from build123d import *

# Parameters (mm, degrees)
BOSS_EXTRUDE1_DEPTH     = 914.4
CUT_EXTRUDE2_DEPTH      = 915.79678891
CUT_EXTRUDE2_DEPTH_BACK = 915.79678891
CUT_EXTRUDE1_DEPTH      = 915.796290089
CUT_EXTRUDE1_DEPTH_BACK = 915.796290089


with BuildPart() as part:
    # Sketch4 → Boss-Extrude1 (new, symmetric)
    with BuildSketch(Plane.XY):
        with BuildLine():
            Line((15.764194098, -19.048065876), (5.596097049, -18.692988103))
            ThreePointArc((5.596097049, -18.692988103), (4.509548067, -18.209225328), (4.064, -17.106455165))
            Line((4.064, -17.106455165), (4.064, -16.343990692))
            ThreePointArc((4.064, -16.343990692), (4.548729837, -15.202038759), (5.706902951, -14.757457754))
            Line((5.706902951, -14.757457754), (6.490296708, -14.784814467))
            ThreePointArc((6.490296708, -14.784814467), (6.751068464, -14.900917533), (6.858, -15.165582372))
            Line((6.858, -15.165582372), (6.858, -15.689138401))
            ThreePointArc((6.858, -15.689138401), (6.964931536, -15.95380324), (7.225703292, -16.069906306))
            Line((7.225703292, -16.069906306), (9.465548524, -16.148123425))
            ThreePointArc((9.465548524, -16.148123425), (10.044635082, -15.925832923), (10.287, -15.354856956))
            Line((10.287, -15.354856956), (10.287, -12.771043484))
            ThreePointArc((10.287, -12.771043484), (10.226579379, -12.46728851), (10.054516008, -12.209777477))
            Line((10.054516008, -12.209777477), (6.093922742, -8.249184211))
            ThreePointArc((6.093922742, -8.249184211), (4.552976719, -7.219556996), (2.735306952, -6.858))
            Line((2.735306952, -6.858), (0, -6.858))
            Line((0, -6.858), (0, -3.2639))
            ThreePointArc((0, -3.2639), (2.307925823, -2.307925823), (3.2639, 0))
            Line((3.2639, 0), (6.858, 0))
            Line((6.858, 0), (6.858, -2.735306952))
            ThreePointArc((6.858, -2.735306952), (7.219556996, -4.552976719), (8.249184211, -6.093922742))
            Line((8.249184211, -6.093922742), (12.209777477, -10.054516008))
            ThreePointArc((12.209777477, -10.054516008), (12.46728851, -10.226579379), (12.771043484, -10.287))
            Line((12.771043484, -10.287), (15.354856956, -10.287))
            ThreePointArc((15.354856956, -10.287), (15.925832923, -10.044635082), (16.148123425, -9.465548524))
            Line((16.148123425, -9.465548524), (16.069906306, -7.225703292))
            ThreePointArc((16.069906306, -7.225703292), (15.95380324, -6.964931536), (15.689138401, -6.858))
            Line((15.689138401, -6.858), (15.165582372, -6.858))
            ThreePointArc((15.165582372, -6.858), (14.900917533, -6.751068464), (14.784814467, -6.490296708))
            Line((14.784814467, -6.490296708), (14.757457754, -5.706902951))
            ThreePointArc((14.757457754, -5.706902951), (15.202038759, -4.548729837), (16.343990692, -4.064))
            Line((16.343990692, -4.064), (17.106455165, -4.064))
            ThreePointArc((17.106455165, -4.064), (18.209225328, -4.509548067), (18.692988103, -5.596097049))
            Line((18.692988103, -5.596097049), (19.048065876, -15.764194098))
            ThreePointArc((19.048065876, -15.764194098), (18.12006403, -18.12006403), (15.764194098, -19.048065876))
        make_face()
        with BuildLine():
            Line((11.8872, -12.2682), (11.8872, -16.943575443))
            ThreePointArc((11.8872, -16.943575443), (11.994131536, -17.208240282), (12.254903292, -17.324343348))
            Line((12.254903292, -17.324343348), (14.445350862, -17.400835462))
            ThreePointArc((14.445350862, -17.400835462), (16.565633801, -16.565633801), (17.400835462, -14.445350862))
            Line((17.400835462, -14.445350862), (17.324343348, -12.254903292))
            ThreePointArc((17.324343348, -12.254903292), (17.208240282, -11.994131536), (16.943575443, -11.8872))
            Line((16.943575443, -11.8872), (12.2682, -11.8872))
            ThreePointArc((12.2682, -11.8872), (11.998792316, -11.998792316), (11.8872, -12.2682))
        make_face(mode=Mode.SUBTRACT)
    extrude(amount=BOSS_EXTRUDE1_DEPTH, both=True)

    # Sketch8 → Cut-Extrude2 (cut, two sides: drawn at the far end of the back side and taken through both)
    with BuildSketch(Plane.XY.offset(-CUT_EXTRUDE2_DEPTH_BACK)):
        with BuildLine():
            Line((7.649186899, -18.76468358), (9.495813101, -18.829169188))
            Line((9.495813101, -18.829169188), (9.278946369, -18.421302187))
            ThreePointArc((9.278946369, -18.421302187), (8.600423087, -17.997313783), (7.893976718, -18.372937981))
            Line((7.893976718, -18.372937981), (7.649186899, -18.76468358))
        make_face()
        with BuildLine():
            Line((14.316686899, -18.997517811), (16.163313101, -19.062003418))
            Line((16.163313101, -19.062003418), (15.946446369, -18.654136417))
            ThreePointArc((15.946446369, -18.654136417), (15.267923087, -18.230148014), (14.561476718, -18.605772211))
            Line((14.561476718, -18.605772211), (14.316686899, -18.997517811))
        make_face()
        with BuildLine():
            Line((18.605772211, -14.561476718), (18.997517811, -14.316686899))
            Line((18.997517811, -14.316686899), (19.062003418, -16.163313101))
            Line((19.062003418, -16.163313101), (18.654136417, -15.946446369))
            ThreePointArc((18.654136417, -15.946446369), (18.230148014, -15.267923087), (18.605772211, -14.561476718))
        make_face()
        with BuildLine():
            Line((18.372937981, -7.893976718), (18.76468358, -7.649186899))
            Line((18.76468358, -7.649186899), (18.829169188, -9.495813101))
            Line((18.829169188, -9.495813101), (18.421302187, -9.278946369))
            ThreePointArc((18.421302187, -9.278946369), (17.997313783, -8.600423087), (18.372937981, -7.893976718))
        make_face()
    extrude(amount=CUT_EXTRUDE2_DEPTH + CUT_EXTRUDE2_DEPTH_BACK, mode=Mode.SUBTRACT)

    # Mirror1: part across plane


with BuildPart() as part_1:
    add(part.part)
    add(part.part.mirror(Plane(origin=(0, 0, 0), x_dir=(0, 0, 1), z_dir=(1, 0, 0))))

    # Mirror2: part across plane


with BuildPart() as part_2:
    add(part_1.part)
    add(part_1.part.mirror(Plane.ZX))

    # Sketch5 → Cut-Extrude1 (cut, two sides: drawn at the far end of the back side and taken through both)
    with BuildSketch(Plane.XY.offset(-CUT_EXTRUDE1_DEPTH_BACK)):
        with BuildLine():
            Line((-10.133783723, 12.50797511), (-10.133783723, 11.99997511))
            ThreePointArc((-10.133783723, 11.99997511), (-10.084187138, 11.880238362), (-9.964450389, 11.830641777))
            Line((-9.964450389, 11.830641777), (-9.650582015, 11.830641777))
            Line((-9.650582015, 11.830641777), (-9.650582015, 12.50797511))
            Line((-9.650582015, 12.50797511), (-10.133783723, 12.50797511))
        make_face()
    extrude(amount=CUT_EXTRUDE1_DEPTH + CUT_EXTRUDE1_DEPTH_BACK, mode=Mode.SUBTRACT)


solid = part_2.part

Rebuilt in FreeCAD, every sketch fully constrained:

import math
import FreeCAD as App
import Part
import Sketcher
from FreeCAD import Vector
Q = App.Units.Quantity

doc = App.newDocument("Part")
body = doc.addObject("PartDesign::Body", "Body")

sketch1 = body.newObject("Sketcher::SketchObject", "Sketch")
sketch1.AttachmentSupport = (doc.getObject("XY_Plane"), [""])
sketch1.MapMode = "FlatFace"
sketch1.addGeometry([
    Part.LineSegment(Vector(5.6, -18.69, 0), Vector(15.76, -19.05, 0)),
    Part.ArcOfCircle(Part.Circle(Vector(15.87, -15.87, 0), Vector(0, 0, 1), 3.18), math.radians(-92), math.radians(2)),
    Part.LineSegment(Vector(19.05, -15.76, 0), Vector(18.69, -5.6, 0)),
    Part.ArcOfCircle(Part.Circle(Vector(17.11, -5.65, 0), Vector(0, 0, 1), 1.59), math.radians(2), math.radians(90)),
    Part.LineSegment(Vector(17.11, -4.06, 0), Vector(16.34, -4.06, 0)),
    Part.ArcOfCircle(Part.Circle(Vector(16.34, -5.65, 0), Vector(0, 0, 1), 1.59), math.radians(90), math.radians(182)),
    Part.LineSegment(Vector(14.76, -5.71, 0), Vector(14.78, -6.49, 0)),
    Part.ArcOfCircle(Part.Circle(Vector(15.17, -6.48, 0), Vector(0, 0, 1), 0.38), math.radians(-178), math.radians(-90)),
    Part.LineSegment(Vector(15.17, -6.86, 0), Vector(15.69, -6.86, 0)),
    Part.ArcOfCircle(Part.Circle(Vector(15.69, -7.24, 0), Vector(0, 0, 1), 0.38), math.radians(2), math.radians(90)),
    Part.LineSegment(Vector(16.07, -7.23, 0), Vector(16.15, -9.47, 0)),
    Part.ArcOfCircle(Part.Circle(Vector(15.35, -9.49, 0), Vector(0, 0, 1), 0.79), math.radians(-90), math.radians(2)),
    Part.LineSegment(Vector(15.35, -10.29, 0), Vector(12.77, -10.29, 0)),
    Part.ArcOfCircle(Part.Circle(Vector(12.77, -9.49, 0), Vector(0, 0, 1), 0.79), math.radians(-135), math.radians(-90)),
    Part.LineSegment(Vector(12.21, -10.05, 0), Vector(8.25, -6.09, 0)),
    Part.ArcOfCircle(Part.Circle(Vector(11.61, -2.74, 0), Vector(0, 0, 1), 4.75), math.radians(180), math.radians(225)),
    Part.LineSegment(Vector(6.86, -2.74, 0), Vector(6.86, 0, 0)),
    Part.LineSegment(Vector(6.86, 0, 0), Vector(3.26, 0, 0)),
    Part.ArcOfCircle(Part.Circle(Vector(0, 0, 0), Vector(0, 0, 1), 3.26), math.radians(-90), math.radians(0)),
    Part.LineSegment(Vector(0, -3.26, 0), Vector(0, -6.86, 0)),
    Part.LineSegment(Vector(0, -6.86, 0), Vector(2.74, -6.86, 0)),
    Part.ArcOfCircle(Part.Circle(Vector(2.74, -11.61, 0), Vector(0, 0, 1), 4.75), math.radians(45), math.radians(90)),
    Part.LineSegment(Vector(6.09, -8.25, 0), Vector(10.05, -12.21, 0)),
    Part.ArcOfCircle(Part.Circle(Vector(9.49, -12.77, 0), Vector(0, 0, 1), 0.79), math.radians(0), math.radians(45)),
    Part.LineSegment(Vector(10.29, -12.77, 0), Vector(10.29, -15.35, 0)),
    Part.ArcOfCircle(Part.Circle(Vector(9.49, -15.35, 0), Vector(0, 0, 1), 0.79), math.radians(-92), math.radians(0)),
    Part.LineSegment(Vector(9.47, -16.15, 0), Vector(7.23, -16.07, 0)),
    Part.ArcOfCircle(Part.Circle(Vector(7.24, -15.69, 0), Vector(0, 0, 1), 0.38), math.radians(180), math.radians(268)),
    Part.LineSegment(Vector(6.86, -15.69, 0), Vector(6.86, -15.17, 0)),
    Part.ArcOfCircle(Part.Circle(Vector(6.48, -15.17, 0), Vector(0, 0, 1), 0.38), math.radians(0), math.radians(88)),
    Part.LineSegment(Vector(6.49, -14.78, 0), Vector(5.71, -14.76, 0)),
    Part.ArcOfCircle(Part.Circle(Vector(5.65, -16.34, 0), Vector(0, 0, 1), 1.59), math.radians(88), math.radians(180)),
    Part.LineSegment(Vector(4.06, -16.34, 0), Vector(4.06, -17.11, 0)),
    Part.ArcOfCircle(Part.Circle(Vector(5.65, -17.11, 0), Vector(0, 0, 1), 1.59), math.radians(180), math.radians(268)),
    Part.ArcOfCircle(Part.Circle(Vector(12.27, -12.27, 0), Vector(0, 0, 1), 0.38), math.radians(90), math.radians(180)),
    Part.LineSegment(Vector(12.27, -11.89, 0), Vector(16.94, -11.89, 0)),
    Part.ArcOfCircle(Part.Circle(Vector(16.94, -12.27, 0), Vector(0, 0, 1), 0.38), math.radians(2), math.radians(90)),
    Part.LineSegment(Vector(17.32, -12.25, 0), Vector(17.4, -14.45, 0)),
    Part.ArcOfCircle(Part.Circle(Vector(14.55, -14.55, 0), Vector(0, 0, 1), 2.86), math.radians(-92), math.radians(2)),
    Part.LineSegment(Vector(14.45, -17.4, 0), Vector(12.25, -17.32, 0)),
    Part.ArcOfCircle(Part.Circle(Vector(12.27, -16.94, 0), Vector(0, 0, 1), 0.38), math.radians(180), math.radians(268)),
    Part.LineSegment(Vector(11.89, -16.94, 0), Vector(11.89, -12.27, 0)),
], False)
sketch1.addConstraint([
    Sketcher.Constraint("Tangent", 0, 2, 1, 1),
    Sketcher.Constraint("Tangent", 1, 2, 2, 1),
    Sketcher.Constraint("Tangent", 2, 2, 3, 1),
    Sketcher.Constraint("Tangent", 3, 2, 4, 1),
    Sketcher.Constraint("Tangent", 4, 2, 5, 1),
    Sketcher.Constraint("Tangent", 5, 2, 6, 1),
    Sketcher.Constraint("Tangent", 6, 2, 7, 1),
    Sketcher.Constraint("Tangent", 7, 2, 8, 1),
    Sketcher.Constraint("Tangent", 8, 2, 9, 2),
    Sketcher.Constraint("Tangent", 9, 1, 10, 1),
    Sketcher.Constraint("Tangent", 10, 2, 11, 2),
    Sketcher.Constraint("Tangent", 11, 1, 12, 1),
    Sketcher.Constraint("Tangent", 12, 2, 13, 2),
    Sketcher.Constraint("Tangent", 13, 1, 14, 1),
    Sketcher.Constraint("Tangent", 14, 2, 15, 2),
    Sketcher.Constraint("Tangent", 15, 1, 16, 1),
    Sketcher.Constraint("Coincident", 16, 2, 17, 1),
    Sketcher.Constraint("Coincident", 17, 2, 18, 2),
    Sketcher.Constraint("Coincident", 18, 1, 19, 1),
    Sketcher.Constraint("Coincident", 19, 2, 20, 1),
    Sketcher.Constraint("Tangent", 20, 2, 21, 2),
    Sketcher.Constraint("Tangent", 21, 1, 22, 1),
    Sketcher.Constraint("Tangent", 22, 2, 23, 2),
    Sketcher.Constraint("Tangent", 23, 1, 24, 1),
    Sketcher.Constraint("Tangent", 24, 2, 25, 2),
    Sketcher.Constraint("Tangent", 25, 1, 26, 1),
    Sketcher.Constraint("Tangent", 26, 2, 27, 2),
    Sketcher.Constraint("Tangent", 27, 1, 28, 1),
    Sketcher.Constraint("Tangent", 28, 2, 29, 1),
    Sketcher.Constraint("Tangent", 29, 2, 30, 1),
    Sketcher.Constraint("Tangent", 30, 2, 31, 1),
    Sketcher.Constraint("Tangent", 31, 2, 32, 1),
    Sketcher.Constraint("Tangent", 32, 2, 33, 1),
    Sketcher.Constraint("Tangent", 33, 2, 0, 1),
    Sketcher.Constraint("Tangent", 34, 1, 35, 1),
    Sketcher.Constraint("Tangent", 35, 2, 36, 2),
    Sketcher.Constraint("Tangent", 36, 1, 37, 1),
    Sketcher.Constraint("Tangent", 37, 2, 38, 2),
    Sketcher.Constraint("Tangent", 38, 1, 39, 1),
    Sketcher.Constraint("Tangent", 39, 2, 40, 2),
    Sketcher.Constraint("Tangent", 40, 1, 41, 1),
    Sketcher.Constraint("Tangent", 41, 2, 34, 2),
    Sketcher.Constraint("Horizontal", 4),
    Sketcher.Constraint("Horizontal", 8),
    Sketcher.Constraint("Horizontal", 12),
    Sketcher.Constraint("Vertical", 16),
    Sketcher.Constraint("Horizontal", 17),
    Sketcher.Constraint("Vertical", 19),
    Sketcher.Constraint("Horizontal", 20),
    Sketcher.Constraint("Vertical", 24),
    Sketcher.Constraint("Vertical", 28),
    Sketcher.Constraint("Vertical", 32),
    Sketcher.Constraint("Horizontal", 35),
    Sketcher.Constraint("Vertical", 41),
    Sketcher.Constraint("Coincident", 18, 3, -1, 1),
    Sketcher.Constraint("Equal", 3, 5),
    Sketcher.Constraint("Equal", 7, 9),
    Sketcher.Constraint("Equal", 11, 13),
    Sketcher.Constraint("Equal", 15, 21),
    Sketcher.Constraint("Equal", 13, 23),
    Sketcher.Constraint("Equal", 23, 25),
    Sketcher.Constraint("Equal", 9, 27),
    Sketcher.Constraint("Equal", 27, 29),
    Sketcher.Constraint("Equal", 5, 31),
    Sketcher.Constraint("Equal", 31, 33),
    Sketcher.Constraint("Equal", 29, 34),
    Sketcher.Constraint("Equal", 34, 36),
    Sketcher.Constraint("Equal", 36, 40),
    Sketcher.Constraint("PointOnObject", 16, 2, -1),
    Sketcher.Constraint("PointOnObject", 18, 1, -2),
    Sketcher.Constraint("Parallel", 2, 6),
    Sketcher.Constraint("Parallel", 6, 10),
    Sketcher.Constraint("Parallel", 14, 22),
    Sketcher.Constraint("Parallel", 0, 26),
    Sketcher.Constraint("Parallel", 26, 30),
    Sketcher.Constraint("Parallel", 10, 37),
    Sketcher.Constraint("Parallel", 30, 39),
    Sketcher.Constraint("Horizontal", 8, 2, 19, 2),
    Sketcher.Constraint("Vertical", 16, 2, 27, 1),
    Sketcher.Constraint("Equal", 20, 16),
    Sketcher.Constraint("Equal", 17, 19),
    Sketcher.Constraint("Equal", 12, 24),
    Sketcher.Constraint("Equal", 8, 28),
    Sketcher.Constraint("Equal", 4, 32),
    Sketcher.Constraint("Equal", 35, 41),
    Sketcher.Constraint("Equal", 0, 2),
    Sketcher.Constraint("Equal", 14, 22),
    Sketcher.Constraint("Equal", 10, 26),
    Sketcher.Constraint("Equal", 6, 30),
    Sketcher.Constraint("Angle", 0, Q("-2 deg")),
    Sketcher.Constraint("Radius", 1, Q("0.125 in")),
    Sketcher.Constraint("Radius", 3, Q("0.0625 in")),
    Sketcher.Constraint("Radius", 7, Q("0.015 in")),
    Sketcher.Constraint("Radius", 11, Q("0.03125 in")),
    Sketcher.Constraint("Radius", 15, Q("0.187 in")),
    Sketcher.Constraint("Radius", 18, Q("0.1285 in")),
    Sketcher.Constraint("Radius", 38, Q("0.1125 in")),
    Sketcher.Constraint("DistanceY", 3, 2, -1, 1, Q("0.16 in")),
    Sketcher.Constraint("DistanceY", 7, 2, -1, 1, Q("0.27 in")),
    Sketcher.Constraint("DistanceX", -1, 1, 1, 3, Q("0.625 in")),
    Sketcher.Constraint("DistanceX", -1, 1, 34, 3, Q("0.483 in")),
    Sketcher.Constraint("DistanceY", 34, 3, -1, 1, Q("0.483 in")),
    Sketcher.Constraint("DistanceY", 11, 1, -1, 1, Q("0.405 in")),
    Sketcher.Constraint("DistanceX", -1, 1, 13, 1, Q("0.4806999 in")),
    Sketcher.Constraint("DistanceX", 4, 2, 4, 1, Q("0.762464 mm")),
    Sketcher.Constraint("DistanceX", 8, 1, 8, 2, Q("0.523556 mm")),
    Sketcher.Constraint("DistanceX", 35, 1, 35, 2, Q("4.675375 mm")),
])
pad1 = body.newObject("PartDesign::Pad", "Pad")
pad1.Profile = sketch1
pad1.Length = Q("72 in")
pad1.Midplane = True

sketch2 = body.newObject("Sketcher::SketchObject", "Sketch001")
sketch2.AttachmentSupport = (doc.getObject("XY_Plane"), [""])
sketch2.MapMode = "FlatFace"
sketch2.addGeometry([
    Part.LineSegment(Vector(7.65, -18.76, 0), Vector(9.5, -18.83, 0)),
    Part.LineSegment(Vector(9.5, -18.83, 0), Vector(9.28, -18.42, 0)),
    Part.ArcOfCircle(Part.Circle(Vector(8.57, -18.8, 0), Vector(0, 0, 1), 0.8), math.radians(28), math.radians(148)),
    Part.LineSegment(Vector(7.89, -18.37, 0), Vector(7.65, -18.76, 0)),
    Part.LineSegment(Vector(14.32, -19, 0), Vector(16.16, -19.06, 0)),
    Part.LineSegment(Vector(16.16, -19.06, 0), Vector(15.95, -18.65, 0)),
    Part.ArcOfCircle(Part.Circle(Vector(15.24, -19.03, 0), Vector(0, 0, 1), 0.8), math.radians(28), math.radians(148)),
    Part.LineSegment(Vector(14.56, -18.61, 0), Vector(14.32, -19, 0)),
    Part.LineSegment(Vector(19, -14.32, 0), Vector(18.61, -14.56, 0)),
    Part.ArcOfCircle(Part.Circle(Vector(19.03, -15.24, 0), Vector(0, 0, 1), 0.8), math.radians(122), math.radians(242)),
    Part.LineSegment(Vector(18.65, -15.95, 0), Vector(19.06, -16.16, 0)),
    Part.LineSegment(Vector(19.06, -16.16, 0), Vector(19, -14.32, 0)),
    Part.LineSegment(Vector(18.76, -7.65, 0), Vector(18.37, -7.89, 0)),
    Part.ArcOfCircle(Part.Circle(Vector(18.8, -8.57, 0), Vector(0, 0, 1), 0.8), math.radians(122), math.radians(242)),
    Part.LineSegment(Vector(18.42, -9.28, 0), Vector(18.83, -9.5, 0)),
    Part.LineSegment(Vector(18.83, -9.5, 0), Vector(18.76, -7.65, 0)),
], False)
sketch2.addConstraint([
    Sketcher.Constraint("Coincident", 0, 2, 1, 1),
    Sketcher.Constraint("Tangent", 1, 2, 2, 1),
    Sketcher.Constraint("Tangent", 2, 2, 3, 1),
    Sketcher.Constraint("Coincident", 3, 2, 0, 1),
    Sketcher.Constraint("Coincident", 4, 2, 5, 1),
    Sketcher.Constraint("Tangent", 5, 2, 6, 1),
    Sketcher.Constraint("Tangent", 6, 2, 7, 1),
    Sketcher.Constraint("Coincident", 7, 2, 4, 1),
    Sketcher.Constraint("Tangent", 8, 2, 9, 1),
    Sketcher.Constraint("Tangent", 9, 2, 10, 1),
    Sketcher.Constraint("Coincident", 10, 2, 11, 1),
    Sketcher.Constraint("Coincident", 11, 2, 8, 1),
    Sketcher.Constraint("Tangent", 12, 2, 13, 1),
    Sketcher.Constraint("Tangent", 13, 2, 14, 1),
    Sketcher.Constraint("Coincident", 14, 2, 15, 1),
    Sketcher.Constraint("Coincident", 15, 2, 12, 1),
    Sketcher.Constraint("Equal", 2, 6),
    Sketcher.Constraint("Equal", 6, 9),
    Sketcher.Constraint("Equal", 9, 13),
    Sketcher.Constraint("Parallel", 0, 4),
    Sketcher.Constraint("Parallel", 1, 5),
    Sketcher.Constraint("Parallel", 3, 7),
    Sketcher.Constraint("Parallel", 8, 12),
    Sketcher.Constraint("Parallel", 10, 14),
    Sketcher.Constraint("Parallel", 11, 15),
    Sketcher.Constraint("Equal", 1, 3),
    Sketcher.Constraint("Equal", 0, 4),
    Sketcher.Constraint("Equal", 7, 8),
    Sketcher.Constraint("Equal", 8, 10),
    Sketcher.Constraint("Equal", 10, 12),
    Sketcher.Constraint("Angle", 0, Q("-2 deg")),
    Sketcher.Constraint("Angle", 1, Q("118 deg")),
    Sketcher.Constraint("Angle", 8, Q("-148 deg")),
    Sketcher.Constraint("Angle", 10, Q("-28 deg")),
    Sketcher.Constraint("DistanceX", -1, 1, 6, 3, Q("0.6 in")),
    Sketcher.Constraint("DistanceY", 9, 3, -1, 1, Q("0.6 in")),
    Sketcher.Constraint("Radius", 2, Q("0.0315 in")),
    Sketcher.Constraint("DistanceX", -1, 1, 2, 3, Q("0.3375 in")),
    Sketcher.Constraint("DistanceY", 13, 3, -1, 1, Q("0.3375 in")),
    Sketcher.Constraint("DistanceY", 4, 2, 1, 2, Q("0.640701 mm")),
    Sketcher.Constraint("DistanceX", 12, 2, 9, 2, Q("0.281198 mm")),
    Sketcher.Constraint("Distance", 0, Q("1.847752 mm")),
    Sketcher.Constraint("DistanceY", 6, 3, -1, 1, Q("19.029761 mm")),
    Sketcher.Constraint("DistanceX", -1, 1, 9, 3, Q("19.029761 mm")),
])
pocket1 = body.newObject("PartDesign::Pocket", "Pocket")
pocket1.Profile = sketch2
pocket1.Type = "ThroughAll"
pocket1.Midplane = True
body2 = doc.addObject("PartDesign::Body", "Body001")
doc.recompute()

body2.BaseFeature = body
doc.recompute()

mirroring = doc.addObject("Part::Mirroring", "Mirroring")
mirroring.Source = body
mirroring.Base = Vector(0, 0, 0)
mirroring.Normal = Vector(1, 0, 0)
body3 = doc.addObject("PartDesign::Body", "Body002")
body3.BaseFeature = mirroring
boolean = body2.newObject("PartDesign::Boolean", "Boolean")
boolean.Type = "Fuse"
boolean.addObjects([body3])
doc.recompute()
body4 = doc.addObject("PartDesign::Body", "Body003")
doc.recompute()

body4.BaseFeature = body2
doc.recompute()

mirroring2 = doc.addObject("Part::Mirroring", "Mirroring001")
mirroring2.Source = body2
mirroring2.Base = Vector(0, 0, 0)
mirroring2.Normal = Vector(0, 1, 0)
body5 = doc.addObject("PartDesign::Body", "Body004")
body5.BaseFeature = mirroring2
boolean2 = body4.newObject("PartDesign::Boolean", "Boolean001")
boolean2.Type = "Fuse"
boolean2.addObjects([body5])
doc.recompute()

sketch3 = body4.newObject("Sketcher::SketchObject", "Sketch002")
sketch3.AttachmentSupport = (doc.getObject("XY_Plane003"), [""])
sketch3.MapMode = "FlatFace"
sketch3.addGeometry([
    Part.LineSegment(Vector(-10.13, 12.51, 0), Vector(-10.13, 12, 0)),
    Part.ArcOfCircle(Part.Circle(Vector(-9.96, 12, 0), Vector(0, 0, 1), 0.17), math.radians(180), math.radians(270)),
    Part.LineSegment(Vector(-9.96, 11.83, 0), Vector(-9.65, 11.83, 0)),
    Part.LineSegment(Vector(-9.65, 11.83, 0), Vector(-9.65, 12.51, 0)),
    Part.LineSegment(Vector(-9.65, 12.51, 0), Vector(-10.13, 12.51, 0)),
], False)
sketch3.addConstraint([
    Sketcher.Constraint("Tangent", 0, 2, 1, 1),
    Sketcher.Constraint("Tangent", 1, 2, 2, 1),
    Sketcher.Constraint("Coincident", 2, 2, 3, 1),
    Sketcher.Constraint("Coincident", 3, 2, 4, 1),
    Sketcher.Constraint("Coincident", 4, 2, 0, 1),
    Sketcher.Constraint("Vertical", 0),
    Sketcher.Constraint("Horizontal", 2),
    Sketcher.Constraint("Vertical", 3),
    Sketcher.Constraint("Horizontal", 4),
    Sketcher.Constraint("DistanceY", 0, 2, 0, 1, Q("0.02 in")),
    Sketcher.Constraint("DistanceX", 4, 2, 4, 1, Q("0.483202 mm")),
    Sketcher.Constraint("Radius", 1, Q("0.169333 mm")),
    Sketcher.Constraint("DistanceX", 1, 3, -1, 1, Q("9.96445 mm")),
    Sketcher.Constraint("DistanceY", -1, 1, 1, 2, Q("11.830642 mm")),
])
pocket2 = body4.newObject("PartDesign::Pocket", "Pocket001")
pocket2.Profile = sketch3
pocket2.Type = "ThroughAll"
pocket2.Midplane = True
mirroring.Visibility = False
mirroring2.Visibility = False

doc.recompute()
